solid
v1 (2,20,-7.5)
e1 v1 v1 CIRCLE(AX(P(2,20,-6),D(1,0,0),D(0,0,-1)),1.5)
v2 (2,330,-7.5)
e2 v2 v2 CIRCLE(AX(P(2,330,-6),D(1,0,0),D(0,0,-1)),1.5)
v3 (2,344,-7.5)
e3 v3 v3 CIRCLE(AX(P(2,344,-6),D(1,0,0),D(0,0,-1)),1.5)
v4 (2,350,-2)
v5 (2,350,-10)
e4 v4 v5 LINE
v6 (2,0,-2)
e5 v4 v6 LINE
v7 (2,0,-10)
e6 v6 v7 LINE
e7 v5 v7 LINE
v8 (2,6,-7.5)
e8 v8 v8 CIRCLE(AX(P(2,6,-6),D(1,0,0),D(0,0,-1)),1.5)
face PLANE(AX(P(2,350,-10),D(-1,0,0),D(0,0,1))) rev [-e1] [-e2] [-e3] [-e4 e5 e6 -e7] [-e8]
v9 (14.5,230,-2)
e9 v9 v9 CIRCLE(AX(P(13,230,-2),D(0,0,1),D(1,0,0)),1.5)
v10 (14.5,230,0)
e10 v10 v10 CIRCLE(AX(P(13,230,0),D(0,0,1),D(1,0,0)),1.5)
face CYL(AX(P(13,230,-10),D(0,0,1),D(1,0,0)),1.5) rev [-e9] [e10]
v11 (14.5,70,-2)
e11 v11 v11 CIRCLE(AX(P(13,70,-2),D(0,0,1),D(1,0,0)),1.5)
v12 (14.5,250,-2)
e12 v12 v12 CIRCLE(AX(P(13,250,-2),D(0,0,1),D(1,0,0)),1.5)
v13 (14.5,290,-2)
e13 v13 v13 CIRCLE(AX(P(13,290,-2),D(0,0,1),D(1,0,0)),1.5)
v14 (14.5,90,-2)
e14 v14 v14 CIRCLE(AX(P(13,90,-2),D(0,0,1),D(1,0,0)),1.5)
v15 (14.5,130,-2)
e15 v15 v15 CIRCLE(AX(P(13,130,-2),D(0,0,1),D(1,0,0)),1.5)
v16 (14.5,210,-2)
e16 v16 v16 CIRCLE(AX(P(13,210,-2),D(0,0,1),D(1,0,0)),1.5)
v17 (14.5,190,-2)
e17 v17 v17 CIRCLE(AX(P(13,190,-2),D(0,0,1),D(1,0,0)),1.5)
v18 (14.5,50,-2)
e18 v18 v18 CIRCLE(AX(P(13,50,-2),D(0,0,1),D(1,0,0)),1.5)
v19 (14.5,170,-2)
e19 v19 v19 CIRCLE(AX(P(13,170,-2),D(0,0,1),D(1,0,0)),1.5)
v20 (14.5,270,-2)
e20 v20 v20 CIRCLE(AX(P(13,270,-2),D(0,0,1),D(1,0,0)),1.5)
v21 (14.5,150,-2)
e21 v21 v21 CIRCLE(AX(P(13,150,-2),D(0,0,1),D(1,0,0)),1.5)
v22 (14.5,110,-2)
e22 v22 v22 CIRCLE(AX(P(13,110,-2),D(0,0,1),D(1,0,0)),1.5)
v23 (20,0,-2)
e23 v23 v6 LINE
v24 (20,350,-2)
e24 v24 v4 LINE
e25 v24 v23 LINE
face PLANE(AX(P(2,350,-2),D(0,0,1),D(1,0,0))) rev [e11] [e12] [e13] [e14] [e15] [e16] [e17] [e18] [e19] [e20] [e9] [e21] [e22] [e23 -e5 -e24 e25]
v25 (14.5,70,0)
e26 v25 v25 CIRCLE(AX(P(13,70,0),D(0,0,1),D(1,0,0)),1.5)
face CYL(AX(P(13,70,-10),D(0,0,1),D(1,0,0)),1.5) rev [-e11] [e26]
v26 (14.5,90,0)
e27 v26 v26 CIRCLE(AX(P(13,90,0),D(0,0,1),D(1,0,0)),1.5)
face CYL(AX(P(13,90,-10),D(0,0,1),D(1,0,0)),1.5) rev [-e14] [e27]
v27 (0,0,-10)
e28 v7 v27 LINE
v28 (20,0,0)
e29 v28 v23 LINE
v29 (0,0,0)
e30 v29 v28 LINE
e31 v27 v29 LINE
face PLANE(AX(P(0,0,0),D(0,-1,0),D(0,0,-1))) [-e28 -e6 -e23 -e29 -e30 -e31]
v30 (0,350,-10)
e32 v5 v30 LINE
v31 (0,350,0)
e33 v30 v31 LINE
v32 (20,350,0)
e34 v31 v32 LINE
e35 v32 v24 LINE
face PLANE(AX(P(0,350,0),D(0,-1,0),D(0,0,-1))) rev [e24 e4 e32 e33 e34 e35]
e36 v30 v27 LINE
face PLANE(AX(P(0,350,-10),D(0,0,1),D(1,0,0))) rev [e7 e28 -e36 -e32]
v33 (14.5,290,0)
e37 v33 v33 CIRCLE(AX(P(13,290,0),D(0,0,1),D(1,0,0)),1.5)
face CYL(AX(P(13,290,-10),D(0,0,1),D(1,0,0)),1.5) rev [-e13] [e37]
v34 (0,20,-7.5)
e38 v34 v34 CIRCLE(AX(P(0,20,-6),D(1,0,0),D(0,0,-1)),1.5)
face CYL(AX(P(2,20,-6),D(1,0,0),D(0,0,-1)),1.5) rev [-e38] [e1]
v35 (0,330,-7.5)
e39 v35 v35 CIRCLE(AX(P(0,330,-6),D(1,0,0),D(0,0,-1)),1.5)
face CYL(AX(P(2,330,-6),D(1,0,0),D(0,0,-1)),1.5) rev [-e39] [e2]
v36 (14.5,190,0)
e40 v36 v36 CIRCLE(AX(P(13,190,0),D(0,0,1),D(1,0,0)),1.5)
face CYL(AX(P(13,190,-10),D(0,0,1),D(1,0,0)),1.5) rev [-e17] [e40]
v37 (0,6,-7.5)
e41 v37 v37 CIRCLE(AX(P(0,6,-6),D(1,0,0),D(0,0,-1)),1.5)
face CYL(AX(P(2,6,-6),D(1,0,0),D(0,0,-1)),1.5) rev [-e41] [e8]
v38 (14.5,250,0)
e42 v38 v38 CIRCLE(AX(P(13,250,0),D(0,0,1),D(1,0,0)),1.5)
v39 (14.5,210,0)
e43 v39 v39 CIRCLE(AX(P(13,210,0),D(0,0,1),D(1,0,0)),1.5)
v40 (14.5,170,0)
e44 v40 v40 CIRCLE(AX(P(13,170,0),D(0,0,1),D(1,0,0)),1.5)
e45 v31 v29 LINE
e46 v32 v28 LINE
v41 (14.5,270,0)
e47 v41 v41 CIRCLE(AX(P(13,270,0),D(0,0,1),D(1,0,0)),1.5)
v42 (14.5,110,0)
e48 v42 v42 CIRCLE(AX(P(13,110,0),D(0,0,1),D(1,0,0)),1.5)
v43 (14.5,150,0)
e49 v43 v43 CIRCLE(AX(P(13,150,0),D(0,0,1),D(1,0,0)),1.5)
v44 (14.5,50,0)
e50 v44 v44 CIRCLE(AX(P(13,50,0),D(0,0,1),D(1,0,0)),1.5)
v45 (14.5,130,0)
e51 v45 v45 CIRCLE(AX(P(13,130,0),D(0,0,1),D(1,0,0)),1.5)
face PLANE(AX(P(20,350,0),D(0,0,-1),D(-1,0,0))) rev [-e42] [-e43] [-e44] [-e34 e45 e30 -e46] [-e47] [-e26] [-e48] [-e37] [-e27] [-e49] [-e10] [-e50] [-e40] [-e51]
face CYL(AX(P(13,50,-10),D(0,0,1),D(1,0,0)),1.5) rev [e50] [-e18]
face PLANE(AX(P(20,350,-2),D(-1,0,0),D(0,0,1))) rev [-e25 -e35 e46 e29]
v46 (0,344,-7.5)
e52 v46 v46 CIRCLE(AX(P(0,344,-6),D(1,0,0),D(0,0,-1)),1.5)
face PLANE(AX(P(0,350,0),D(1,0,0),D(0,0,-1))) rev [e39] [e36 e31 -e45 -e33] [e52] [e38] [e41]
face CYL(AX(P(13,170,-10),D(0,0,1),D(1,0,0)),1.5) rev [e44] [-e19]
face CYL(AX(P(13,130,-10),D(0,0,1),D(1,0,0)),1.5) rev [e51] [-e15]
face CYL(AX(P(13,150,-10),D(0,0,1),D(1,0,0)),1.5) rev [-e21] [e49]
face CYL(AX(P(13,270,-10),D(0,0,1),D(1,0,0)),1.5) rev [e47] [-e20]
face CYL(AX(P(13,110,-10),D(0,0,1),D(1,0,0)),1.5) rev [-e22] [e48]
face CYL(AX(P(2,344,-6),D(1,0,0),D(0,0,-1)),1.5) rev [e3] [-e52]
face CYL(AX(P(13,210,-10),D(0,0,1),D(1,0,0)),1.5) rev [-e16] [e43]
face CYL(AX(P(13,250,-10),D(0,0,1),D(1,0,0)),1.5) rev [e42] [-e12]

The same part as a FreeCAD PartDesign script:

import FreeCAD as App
import Part
import Sketcher


def add_polygon(sketch, points):
    """Adds a closed chain of lines whose ends are joined by coincident constraints."""
    first, n = sketch.GeometryCount, len(points)
    for a, b in zip(points, points[1:] + points[:1]):
        sketch.addGeometry(Part.LineSegment(App.Vector(*a, 0), App.Vector(*b, 0)), False)
    for i in range(n):
        sketch.addConstraint(Sketcher.Constraint("Coincident", first + i, 2, first + (i + 1) % n, 1))

doc = App.newDocument("Part")
body = doc.addObject("PartDesign::Body", "Body")

# Sketch on XZ plane
sketch1 = body.newObject("Sketcher::SketchObject", "Sketch")
sketch1.AttachmentSupport = (doc.getObject("XZ_Plane"), [""])
sketch1.MapMode = "FlatFace"
add_polygon(sketch1, [(0, -10), (0, 0), (20, 0), (20, -2), (2, -2), (2, -10)])  # lines 0-5
sketch1.addConstraint([
    Sketcher.Constraint("Vertical", 0),
    Sketcher.Constraint("Horizontal", 1),
    Sketcher.Constraint("Vertical", 2),
    Sketcher.Constraint("Horizontal", 3),
    Sketcher.Constraint("Vertical", 4),
    Sketcher.Constraint("Horizontal", 5),
    Sketcher.Constraint("Coincident", 0, 2, -1, 1),
    Sketcher.Constraint("Equal", 5, 2),
    Sketcher.Constraint("DistanceX", 1, 1, 1, 2, 20.0),
    Sketcher.Constraint("DistanceX", 3, 2, 3, 1, 18.0),
    Sketcher.Constraint("DistanceY", 0, 1, 0, 2, 10.0),
])
pad1 = body.newObject("PartDesign::Pad", "Pad")
pad1.Profile = sketch1
pad1.Length = 350
pad1.Reversed = True

# Sketch on YZ plane
sketch2 = body.newObject("Sketcher::SketchObject", "Sketch001")
sketch2.AttachmentSupport = (doc.getObject("YZ_Plane"), [""])
sketch2.MapMode = "FlatFace"
sketch2.AttachmentOffset = App.Placement(App.Vector(0, 0, 2), App.Rotation())
sketch2.addGeometry([
    Part.Circle(App.Vector(6, -6, 0), App.Vector(0, 0, 1), 1.5),
    Part.Circle(App.Vector(20, -6, 0), App.Vector(0, 0, 1), 1.5),
], False)
sketch2.addConstraint([
    Sketcher.Constraint("Equal", 0, 1),
    Sketcher.Constraint("Horizontal", 0, 3, 1, 3),
    Sketcher.Constraint("Diameter", 0, 3.0),
    Sketcher.Constraint("DistanceX", -1, 1, 0, 3, 6.0),
    Sketcher.Constraint("DistanceY", 0, 3, -1, 1, 6.0),
    Sketcher.Constraint("DistanceX", -1, 1, 1, 3, 20.0),
])
doc.recompute()
hole = body.newObject("PartDesign::Hole", "Hole")
hole.Profile = sketch2
hole.ThreadType = "None"
hole.Diameter = 3
hole.DepthType = "ThroughAll"

# Sketch on YZ plane
sketch3 = body.newObject("Sketcher::SketchObject", "Sketch002")
sketch3.AttachmentSupport = (doc.getObject("YZ_Plane"), [""])
sketch3.MapMode = "FlatFace"
sketch3.AttachmentOffset = App.Placement(App.Vector(0, 0, 2), App.Rotation())
sketch3.addGeometry([
    Part.Circle(App.Vector(344, -6, 0), App.Vector(0, 0, 1), 1.5),
    Part.Circle(App.Vector(330, -6, 0), App.Vector(0, 0, 1), 1.5),
], False)
sketch3.addConstraint([
    Sketcher.Constraint("Equal", 0, 1),
    Sketcher.Constraint("Horizontal", 0, 3, 1, 3),
    Sketcher.Constraint("Diameter", 0, 3.0),
    Sketcher.Constraint("DistanceX", -1, 1, 0, 3, 344.0),
    Sketcher.Constraint("DistanceY", 0, 3, -1, 1, 6.0),
    Sketcher.Constraint("DistanceX", -1, 1, 1, 3, 330.0),
])
doc.recompute()
hole2 = body.newObject("PartDesign::Hole", "Hole001")
hole2.Profile = sketch3
hole2.ThreadType = "None"
hole2.Diameter = 3
hole2.DepthType = "ThroughAll"

# Sketch on XY plane
sketch4 = body.newObject("Sketcher::SketchObject", "Sketch003")
sketch4.AttachmentSupport = (doc.getObject("XY_Plane"), [""])
sketch4.MapMode = "FlatFace"
sketch4.addGeometry([
    Part.Circle(App.Vector(13, 290, 0), App.Vector(0, 0, 1), 1.5),  # 0
    Part.Circle(App.Vector(13, 270, 0), App.Vector(0, 0, 1), 1.5),  # 1
    Part.Circle(App.Vector(13, 250, 0), App.Vector(0, 0, 1), 1.5),  # 2
    Part.Circle(App.Vector(13, 230, 0), App.Vector(0, 0, 1), 1.5),  # 3
    Part.Circle(App.Vector(13, 210, 0), App.Vector(0, 0, 1), 1.5),  # 4
    Part.Circle(App.Vector(13, 190, 0), App.Vector(0, 0, 1), 1.5),  # 5
    Part.Circle(App.Vector(13, 170, 0), App.Vector(0, 0, 1), 1.5),  # 6
    Part.Circle(App.Vector(13, 150, 0), App.Vector(0, 0, 1), 1.5),  # 7
    Part.Circle(App.Vector(13, 130, 0), App.Vector(0, 0, 1), 1.5),  # 8
    Part.Circle(App.Vector(13, 110, 0), App.Vector(0, 0, 1), 1.5),  # 9
    Part.Circle(App.Vector(13, 90, 0), App.Vector(0, 0, 1), 1.5),  # 10
    Part.Circle(App.Vector(13, 70, 0), App.Vector(0, 0, 1), 1.5),  # 11
    Part.Circle(App.Vector(13, 50, 0), App.Vector(0, 0, 1), 1.5),  # 12
], False)
sketch4.addConstraint([
    Sketcher.Constraint("Equal", 0, 1),
    Sketcher.Constraint("Equal", 1, 2),
    Sketcher.Constraint("Equal", 2, 3),
    Sketcher.Constraint("Equal", 3, 4),
    Sketcher.Constraint("Equal", 4, 5),
    Sketcher.Constraint("Equal", 5, 6),
    Sketcher.Constraint("Equal", 6, 7),
    Sketcher.Constraint("Equal", 7, 8),
    Sketcher.Constraint("Equal", 8, 9),
    Sketcher.Constraint("Equal", 9, 10),
    Sketcher.Constraint("Equal", 10, 11),
    Sketcher.Constraint("Equal", 11, 12),
    Sketcher.Constraint("Vertical", 0, 3, 1, 3),
    Sketcher.Constraint("Vertical", 1, 3, 2, 3),
    Sketcher.Constraint("Vertical", 2, 3, 3, 3),
    Sketcher.Constraint("Vertical", 3, 3, 4, 3),
    Sketcher.Constraint("Vertical", 4, 3, 5, 3),
    Sketcher.Constraint("Vertical", 5, 3, 6, 3),
    Sketcher.Constraint("Vertical", 6, 3, 7, 3),
    Sketcher.Constraint("Vertical", 7, 3, 8, 3),
    Sketcher.Constraint("Vertical", 8, 3, 9, 3),
    Sketcher.Constraint("Vertical", 9, 3, 10, 3),
    Sketcher.Constraint("Vertical", 10, 3, 11, 3),
    Sketcher.Constraint("Vertical", 11, 3, 12, 3),
    Sketcher.Constraint("Diameter", 0, 3.0),
    Sketcher.Constraint("DistanceX", -1, 1, 0, 3, 13.0),
    Sketcher.Constraint("DistanceY", -1, 1, 0, 3, 290.0),
    Sketcher.Constraint("DistanceY", -1, 1, 1, 3, 270.0),
    Sketcher.Constraint("DistanceY", -1, 1, 2, 3, 250.0),
    Sketcher.Constraint("DistanceY", -1, 1, 3, 3, 230.0),
    Sketcher.Constraint("DistanceY", -1, 1, 4, 3, 210.0),
    Sketcher.Constraint("DistanceY", -1, 1, 5, 3, 190.0),
    Sketcher.Constraint("DistanceY", -1, 1, 6, 3, 170.0),
    Sketcher.Constraint("DistanceY", -1, 1, 7, 3, 150.0),
    Sketcher.Constraint("DistanceY", -1, 1, 8, 3, 130.0),
    Sketcher.Constraint("DistanceY", -1, 1, 9, 3, 110.0),
    Sketcher.Constraint("DistanceY", -1, 1, 10, 3, 90.0),
    Sketcher.Constraint("DistanceY", -1, 1, 11, 3, 70.0),
    Sketcher.Constraint("DistanceY", -1, 1, 12, 3, 50.0),
])
pocket1 = body.newObject("PartDesign::Pocket", "Pocket")
pocket1.Profile = sketch4
pocket1.Type = "ThroughAll"

doc.recompute()
